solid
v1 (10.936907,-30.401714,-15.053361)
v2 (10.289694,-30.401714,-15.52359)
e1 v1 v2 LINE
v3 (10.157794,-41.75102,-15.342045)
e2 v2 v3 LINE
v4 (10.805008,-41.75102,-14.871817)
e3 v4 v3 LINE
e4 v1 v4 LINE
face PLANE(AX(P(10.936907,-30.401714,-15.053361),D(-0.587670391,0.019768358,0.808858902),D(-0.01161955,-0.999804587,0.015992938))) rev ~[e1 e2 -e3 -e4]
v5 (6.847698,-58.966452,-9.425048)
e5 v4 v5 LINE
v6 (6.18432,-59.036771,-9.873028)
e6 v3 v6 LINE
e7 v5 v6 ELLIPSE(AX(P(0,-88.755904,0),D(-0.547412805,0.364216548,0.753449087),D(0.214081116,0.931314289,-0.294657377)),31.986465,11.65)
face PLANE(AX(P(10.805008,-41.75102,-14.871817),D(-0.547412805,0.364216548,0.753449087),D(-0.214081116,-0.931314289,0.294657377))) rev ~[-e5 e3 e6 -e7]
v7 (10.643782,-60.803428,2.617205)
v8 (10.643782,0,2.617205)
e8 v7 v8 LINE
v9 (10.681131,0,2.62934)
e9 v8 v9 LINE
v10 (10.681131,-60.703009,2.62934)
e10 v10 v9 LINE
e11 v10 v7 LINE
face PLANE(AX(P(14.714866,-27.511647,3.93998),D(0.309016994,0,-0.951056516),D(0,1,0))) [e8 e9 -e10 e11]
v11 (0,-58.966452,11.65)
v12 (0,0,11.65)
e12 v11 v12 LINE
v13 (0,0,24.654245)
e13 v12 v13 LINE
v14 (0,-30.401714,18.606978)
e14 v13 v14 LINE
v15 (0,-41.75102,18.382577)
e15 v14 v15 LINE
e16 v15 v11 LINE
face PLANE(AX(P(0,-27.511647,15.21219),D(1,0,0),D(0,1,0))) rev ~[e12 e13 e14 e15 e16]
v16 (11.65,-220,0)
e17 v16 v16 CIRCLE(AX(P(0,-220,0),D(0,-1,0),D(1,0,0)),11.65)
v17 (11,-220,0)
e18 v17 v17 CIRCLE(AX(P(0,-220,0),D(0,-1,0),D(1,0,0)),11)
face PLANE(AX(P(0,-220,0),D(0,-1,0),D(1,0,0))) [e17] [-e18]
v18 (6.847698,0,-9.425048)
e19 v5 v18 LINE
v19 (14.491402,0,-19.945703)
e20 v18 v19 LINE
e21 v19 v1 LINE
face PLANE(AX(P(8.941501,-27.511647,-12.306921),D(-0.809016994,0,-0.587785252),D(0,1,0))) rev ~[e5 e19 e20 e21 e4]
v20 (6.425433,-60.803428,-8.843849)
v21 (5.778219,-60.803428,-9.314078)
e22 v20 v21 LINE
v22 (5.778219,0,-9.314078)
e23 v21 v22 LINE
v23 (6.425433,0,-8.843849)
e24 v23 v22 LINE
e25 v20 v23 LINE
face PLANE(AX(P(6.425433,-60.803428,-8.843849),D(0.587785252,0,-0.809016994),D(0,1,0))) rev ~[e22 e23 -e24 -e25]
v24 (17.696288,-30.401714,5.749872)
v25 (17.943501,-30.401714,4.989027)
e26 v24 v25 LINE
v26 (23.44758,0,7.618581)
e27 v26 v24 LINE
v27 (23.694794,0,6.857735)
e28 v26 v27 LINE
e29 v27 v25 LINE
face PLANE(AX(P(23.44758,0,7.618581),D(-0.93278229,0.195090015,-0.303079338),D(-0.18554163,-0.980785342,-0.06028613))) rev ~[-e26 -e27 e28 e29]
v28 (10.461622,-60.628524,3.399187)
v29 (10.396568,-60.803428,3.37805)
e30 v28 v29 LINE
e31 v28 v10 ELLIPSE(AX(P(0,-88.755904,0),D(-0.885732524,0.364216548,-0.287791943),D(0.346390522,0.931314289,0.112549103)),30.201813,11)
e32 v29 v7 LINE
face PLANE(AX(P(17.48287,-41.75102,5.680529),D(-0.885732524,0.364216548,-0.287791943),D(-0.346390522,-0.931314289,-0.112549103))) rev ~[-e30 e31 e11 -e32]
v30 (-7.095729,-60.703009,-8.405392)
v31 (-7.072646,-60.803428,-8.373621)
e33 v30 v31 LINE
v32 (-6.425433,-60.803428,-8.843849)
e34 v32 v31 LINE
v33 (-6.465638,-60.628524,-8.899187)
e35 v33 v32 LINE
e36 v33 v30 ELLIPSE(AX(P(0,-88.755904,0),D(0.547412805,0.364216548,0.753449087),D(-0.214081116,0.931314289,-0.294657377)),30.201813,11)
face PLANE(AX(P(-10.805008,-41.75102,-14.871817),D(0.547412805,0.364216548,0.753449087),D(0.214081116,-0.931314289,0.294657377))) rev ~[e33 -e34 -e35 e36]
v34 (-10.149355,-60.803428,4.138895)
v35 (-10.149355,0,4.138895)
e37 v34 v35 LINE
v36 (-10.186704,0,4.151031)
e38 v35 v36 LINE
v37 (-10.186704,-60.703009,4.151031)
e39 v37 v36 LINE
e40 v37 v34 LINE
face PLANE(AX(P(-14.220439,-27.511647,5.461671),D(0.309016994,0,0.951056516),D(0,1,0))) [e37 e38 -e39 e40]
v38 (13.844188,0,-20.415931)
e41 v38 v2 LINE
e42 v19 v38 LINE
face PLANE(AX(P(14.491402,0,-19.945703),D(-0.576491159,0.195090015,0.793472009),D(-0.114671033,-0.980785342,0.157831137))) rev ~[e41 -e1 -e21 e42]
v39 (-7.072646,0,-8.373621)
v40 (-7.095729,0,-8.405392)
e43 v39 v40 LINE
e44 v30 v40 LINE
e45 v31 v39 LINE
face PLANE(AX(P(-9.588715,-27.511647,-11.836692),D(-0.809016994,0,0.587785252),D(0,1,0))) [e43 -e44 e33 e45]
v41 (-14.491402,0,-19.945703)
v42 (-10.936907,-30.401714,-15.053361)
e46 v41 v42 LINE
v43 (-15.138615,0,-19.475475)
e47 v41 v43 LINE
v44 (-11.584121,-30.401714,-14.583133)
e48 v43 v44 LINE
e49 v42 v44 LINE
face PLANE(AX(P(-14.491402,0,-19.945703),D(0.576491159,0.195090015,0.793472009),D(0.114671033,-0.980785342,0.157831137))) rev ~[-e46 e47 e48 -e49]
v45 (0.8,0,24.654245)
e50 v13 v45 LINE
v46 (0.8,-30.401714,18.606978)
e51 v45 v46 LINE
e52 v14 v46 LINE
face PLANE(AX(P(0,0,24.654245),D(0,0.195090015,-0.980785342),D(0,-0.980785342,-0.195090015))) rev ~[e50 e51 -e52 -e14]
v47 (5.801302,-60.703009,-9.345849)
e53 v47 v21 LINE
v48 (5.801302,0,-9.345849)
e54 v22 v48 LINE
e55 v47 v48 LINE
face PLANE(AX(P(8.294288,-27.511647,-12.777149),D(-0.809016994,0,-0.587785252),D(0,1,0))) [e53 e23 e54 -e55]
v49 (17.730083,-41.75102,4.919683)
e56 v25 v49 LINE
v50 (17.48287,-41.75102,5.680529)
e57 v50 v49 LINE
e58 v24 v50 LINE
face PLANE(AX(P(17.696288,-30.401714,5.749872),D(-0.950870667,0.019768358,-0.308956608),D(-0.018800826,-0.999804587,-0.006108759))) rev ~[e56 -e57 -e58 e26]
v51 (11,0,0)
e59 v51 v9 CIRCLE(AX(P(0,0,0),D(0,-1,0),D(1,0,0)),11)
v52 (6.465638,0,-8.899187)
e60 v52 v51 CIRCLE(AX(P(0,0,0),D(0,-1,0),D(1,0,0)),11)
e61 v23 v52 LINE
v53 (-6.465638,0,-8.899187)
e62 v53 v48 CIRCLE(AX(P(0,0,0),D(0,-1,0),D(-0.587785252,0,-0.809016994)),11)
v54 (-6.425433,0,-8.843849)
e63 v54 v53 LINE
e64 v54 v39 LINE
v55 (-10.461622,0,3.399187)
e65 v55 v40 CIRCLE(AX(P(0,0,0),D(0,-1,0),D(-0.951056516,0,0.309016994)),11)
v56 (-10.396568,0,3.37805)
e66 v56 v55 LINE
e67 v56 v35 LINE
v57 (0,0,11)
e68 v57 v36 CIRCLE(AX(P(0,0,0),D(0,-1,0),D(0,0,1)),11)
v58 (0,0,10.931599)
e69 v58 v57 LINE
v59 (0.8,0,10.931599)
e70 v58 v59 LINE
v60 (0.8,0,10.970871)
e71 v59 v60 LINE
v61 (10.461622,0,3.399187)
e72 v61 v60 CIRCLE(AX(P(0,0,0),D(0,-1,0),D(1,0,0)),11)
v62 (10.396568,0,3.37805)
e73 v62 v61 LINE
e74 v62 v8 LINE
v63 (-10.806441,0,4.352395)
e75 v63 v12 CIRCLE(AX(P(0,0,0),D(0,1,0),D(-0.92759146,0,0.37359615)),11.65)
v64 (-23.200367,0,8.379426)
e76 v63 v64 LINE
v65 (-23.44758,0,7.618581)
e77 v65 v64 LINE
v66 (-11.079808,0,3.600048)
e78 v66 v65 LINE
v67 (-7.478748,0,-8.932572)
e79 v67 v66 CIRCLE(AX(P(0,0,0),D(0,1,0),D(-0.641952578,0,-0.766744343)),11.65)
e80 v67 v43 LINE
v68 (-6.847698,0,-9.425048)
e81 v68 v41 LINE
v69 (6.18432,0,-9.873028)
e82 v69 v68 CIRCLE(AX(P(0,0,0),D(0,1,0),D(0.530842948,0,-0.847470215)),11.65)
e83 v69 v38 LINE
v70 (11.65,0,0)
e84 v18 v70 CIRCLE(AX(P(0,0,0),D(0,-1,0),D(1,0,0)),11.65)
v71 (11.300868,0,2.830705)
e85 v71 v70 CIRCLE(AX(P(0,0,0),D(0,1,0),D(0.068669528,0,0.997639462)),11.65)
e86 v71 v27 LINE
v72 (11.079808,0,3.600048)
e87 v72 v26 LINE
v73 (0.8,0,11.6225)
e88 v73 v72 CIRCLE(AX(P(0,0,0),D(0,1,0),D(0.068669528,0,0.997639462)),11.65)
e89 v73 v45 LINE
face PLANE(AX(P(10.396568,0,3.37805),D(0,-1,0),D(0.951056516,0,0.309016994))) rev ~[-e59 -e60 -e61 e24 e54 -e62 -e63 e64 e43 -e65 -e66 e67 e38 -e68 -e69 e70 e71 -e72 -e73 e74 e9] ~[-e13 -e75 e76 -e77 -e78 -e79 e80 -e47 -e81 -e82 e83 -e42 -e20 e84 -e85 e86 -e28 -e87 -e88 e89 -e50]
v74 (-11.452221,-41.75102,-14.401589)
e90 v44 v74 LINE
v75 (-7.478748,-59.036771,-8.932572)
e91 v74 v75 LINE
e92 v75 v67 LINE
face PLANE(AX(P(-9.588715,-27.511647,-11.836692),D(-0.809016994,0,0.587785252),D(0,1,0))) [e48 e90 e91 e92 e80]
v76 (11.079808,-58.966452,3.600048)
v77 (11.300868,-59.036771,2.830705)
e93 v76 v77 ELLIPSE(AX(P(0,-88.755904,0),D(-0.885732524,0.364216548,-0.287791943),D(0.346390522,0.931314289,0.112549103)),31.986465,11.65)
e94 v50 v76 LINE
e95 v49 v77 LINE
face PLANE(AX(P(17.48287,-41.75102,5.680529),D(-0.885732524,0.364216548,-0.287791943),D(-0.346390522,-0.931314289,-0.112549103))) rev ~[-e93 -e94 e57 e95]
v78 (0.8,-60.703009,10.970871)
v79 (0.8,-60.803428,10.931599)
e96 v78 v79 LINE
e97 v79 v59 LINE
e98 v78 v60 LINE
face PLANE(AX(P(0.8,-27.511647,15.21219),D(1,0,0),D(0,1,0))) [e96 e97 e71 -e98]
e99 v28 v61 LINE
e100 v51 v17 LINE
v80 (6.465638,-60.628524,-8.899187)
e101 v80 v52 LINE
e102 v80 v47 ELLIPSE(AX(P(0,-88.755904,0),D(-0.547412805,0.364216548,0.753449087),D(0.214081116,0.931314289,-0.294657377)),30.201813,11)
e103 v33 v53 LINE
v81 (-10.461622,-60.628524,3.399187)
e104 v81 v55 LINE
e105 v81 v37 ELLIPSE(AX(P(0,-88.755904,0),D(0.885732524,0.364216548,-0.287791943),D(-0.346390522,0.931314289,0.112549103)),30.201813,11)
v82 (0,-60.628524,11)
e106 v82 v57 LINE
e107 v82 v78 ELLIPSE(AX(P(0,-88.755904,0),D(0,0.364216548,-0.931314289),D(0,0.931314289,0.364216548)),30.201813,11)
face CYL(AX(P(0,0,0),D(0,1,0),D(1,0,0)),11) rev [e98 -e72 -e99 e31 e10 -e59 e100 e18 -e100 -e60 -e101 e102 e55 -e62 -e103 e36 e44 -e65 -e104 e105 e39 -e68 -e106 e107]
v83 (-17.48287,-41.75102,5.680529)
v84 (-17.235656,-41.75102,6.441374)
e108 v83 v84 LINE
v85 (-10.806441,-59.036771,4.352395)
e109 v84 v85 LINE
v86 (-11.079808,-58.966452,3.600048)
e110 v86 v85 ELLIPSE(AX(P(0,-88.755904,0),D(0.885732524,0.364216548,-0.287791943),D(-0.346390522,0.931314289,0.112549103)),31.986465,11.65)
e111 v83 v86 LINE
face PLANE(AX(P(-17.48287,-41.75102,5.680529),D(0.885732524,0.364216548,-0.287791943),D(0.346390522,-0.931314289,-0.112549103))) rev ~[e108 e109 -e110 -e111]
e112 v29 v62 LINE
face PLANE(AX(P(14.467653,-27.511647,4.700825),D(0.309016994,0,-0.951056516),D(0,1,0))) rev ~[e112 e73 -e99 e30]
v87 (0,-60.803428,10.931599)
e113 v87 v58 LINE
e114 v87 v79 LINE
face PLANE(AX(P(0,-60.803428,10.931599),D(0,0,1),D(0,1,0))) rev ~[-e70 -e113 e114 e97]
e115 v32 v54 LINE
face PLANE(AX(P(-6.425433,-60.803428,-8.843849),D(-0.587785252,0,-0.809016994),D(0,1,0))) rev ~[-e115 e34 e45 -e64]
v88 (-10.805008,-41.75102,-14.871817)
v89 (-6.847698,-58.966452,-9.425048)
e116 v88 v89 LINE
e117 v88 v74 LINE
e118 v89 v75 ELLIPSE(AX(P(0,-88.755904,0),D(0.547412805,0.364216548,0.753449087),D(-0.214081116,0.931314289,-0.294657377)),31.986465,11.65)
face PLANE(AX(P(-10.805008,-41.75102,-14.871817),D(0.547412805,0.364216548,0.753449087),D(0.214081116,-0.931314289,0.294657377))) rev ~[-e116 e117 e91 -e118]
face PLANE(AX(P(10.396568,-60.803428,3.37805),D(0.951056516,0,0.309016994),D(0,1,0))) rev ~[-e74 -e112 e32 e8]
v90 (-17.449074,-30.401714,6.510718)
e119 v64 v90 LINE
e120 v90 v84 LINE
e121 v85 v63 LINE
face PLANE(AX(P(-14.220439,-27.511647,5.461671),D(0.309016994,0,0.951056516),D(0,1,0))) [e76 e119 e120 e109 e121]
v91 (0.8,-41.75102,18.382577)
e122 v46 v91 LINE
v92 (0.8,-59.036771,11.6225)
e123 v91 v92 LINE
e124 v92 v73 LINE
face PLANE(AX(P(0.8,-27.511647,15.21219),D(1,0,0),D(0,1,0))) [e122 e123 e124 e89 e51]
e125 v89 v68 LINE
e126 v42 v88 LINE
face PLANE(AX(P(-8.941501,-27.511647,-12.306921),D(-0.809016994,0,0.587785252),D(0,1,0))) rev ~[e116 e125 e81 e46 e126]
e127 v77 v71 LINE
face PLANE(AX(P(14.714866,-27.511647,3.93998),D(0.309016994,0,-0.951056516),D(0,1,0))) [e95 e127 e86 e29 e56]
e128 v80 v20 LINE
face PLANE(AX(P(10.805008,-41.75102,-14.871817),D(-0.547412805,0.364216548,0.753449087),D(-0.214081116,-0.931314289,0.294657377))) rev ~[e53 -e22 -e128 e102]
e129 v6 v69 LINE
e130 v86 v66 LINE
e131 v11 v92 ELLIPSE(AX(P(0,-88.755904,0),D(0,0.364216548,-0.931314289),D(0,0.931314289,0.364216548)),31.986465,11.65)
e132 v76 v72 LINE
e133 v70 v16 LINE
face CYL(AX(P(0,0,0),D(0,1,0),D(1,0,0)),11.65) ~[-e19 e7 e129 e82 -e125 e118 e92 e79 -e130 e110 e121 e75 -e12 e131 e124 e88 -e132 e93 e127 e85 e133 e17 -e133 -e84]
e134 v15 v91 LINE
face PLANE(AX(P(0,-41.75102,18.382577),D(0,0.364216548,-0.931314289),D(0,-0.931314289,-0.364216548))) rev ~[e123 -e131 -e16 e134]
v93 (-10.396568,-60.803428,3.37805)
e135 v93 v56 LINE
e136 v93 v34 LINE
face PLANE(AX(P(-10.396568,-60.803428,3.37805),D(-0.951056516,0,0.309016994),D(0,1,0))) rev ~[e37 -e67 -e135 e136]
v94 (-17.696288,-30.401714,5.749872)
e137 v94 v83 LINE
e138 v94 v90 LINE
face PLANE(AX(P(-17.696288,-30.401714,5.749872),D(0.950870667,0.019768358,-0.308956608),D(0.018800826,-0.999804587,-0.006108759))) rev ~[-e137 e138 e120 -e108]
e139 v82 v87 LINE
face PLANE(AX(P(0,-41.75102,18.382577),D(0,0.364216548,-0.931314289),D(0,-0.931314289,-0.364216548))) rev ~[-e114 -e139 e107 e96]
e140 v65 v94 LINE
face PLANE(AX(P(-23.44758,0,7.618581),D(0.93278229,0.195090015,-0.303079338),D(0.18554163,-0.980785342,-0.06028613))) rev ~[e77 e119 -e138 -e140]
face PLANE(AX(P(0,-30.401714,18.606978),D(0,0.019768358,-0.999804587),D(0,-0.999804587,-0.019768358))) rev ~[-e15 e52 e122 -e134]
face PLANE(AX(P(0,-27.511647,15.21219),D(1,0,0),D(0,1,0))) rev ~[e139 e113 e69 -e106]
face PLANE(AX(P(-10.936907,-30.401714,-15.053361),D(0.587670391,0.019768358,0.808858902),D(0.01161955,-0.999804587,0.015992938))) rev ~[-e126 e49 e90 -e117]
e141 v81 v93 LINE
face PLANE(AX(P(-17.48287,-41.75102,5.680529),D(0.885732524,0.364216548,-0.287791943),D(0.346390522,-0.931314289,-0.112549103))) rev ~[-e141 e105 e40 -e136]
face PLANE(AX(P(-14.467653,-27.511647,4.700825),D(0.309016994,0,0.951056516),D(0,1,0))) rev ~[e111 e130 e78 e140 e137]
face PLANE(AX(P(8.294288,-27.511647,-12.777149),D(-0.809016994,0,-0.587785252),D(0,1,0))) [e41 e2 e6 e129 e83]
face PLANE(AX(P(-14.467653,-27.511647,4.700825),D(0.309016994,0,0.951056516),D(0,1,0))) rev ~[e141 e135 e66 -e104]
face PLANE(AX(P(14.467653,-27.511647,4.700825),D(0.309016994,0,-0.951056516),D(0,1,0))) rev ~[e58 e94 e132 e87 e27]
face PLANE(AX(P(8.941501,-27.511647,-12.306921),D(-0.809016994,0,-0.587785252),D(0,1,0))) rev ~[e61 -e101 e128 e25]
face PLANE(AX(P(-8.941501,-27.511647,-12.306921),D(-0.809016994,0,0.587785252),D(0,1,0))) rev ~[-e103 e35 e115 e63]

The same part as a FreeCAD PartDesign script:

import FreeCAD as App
import Part
import Sketcher
Q = App.Units.Quantity


def add_polygon(sketch, points):
    """Adds a closed chain of lines whose ends are joined by coincident constraints."""
    first, n = sketch.GeometryCount, len(points)
    for a, b in zip(points, points[1:] + points[:1]):
        sketch.addGeometry(Part.LineSegment(App.Vector(*a, 0), App.Vector(*b, 0)), False)
    for i in range(n):
        sketch.addConstraint(Sketcher.Constraint("Coincident", first + i, 2, first + (i + 1) % n, 1))

doc = App.newDocument("Part")
body = doc.addObject("PartDesign::Body", "Body")

sketch1 = body.newObject("Sketcher::SketchObject", "Sketch")
sketch1.AttachmentSupport = (doc.getObject("XZ_Plane"), [""])
sketch1.MapMode = "FlatFace"
sketch1.addGeometry(Part.Circle(App.Vector(0, 0, 0), App.Vector(0, 0, 1), 12), False)
sketch1.addGeometry(Part.Circle(App.Vector(0, 0, 0), App.Vector(0, 0, 1), 11), False)
sketch1.addConstraint(Sketcher.Constraint("Coincident", 0, 3, -1, 1))
sketch1.addConstraint(Sketcher.Constraint("Coincident", 1, 3, -1, 1))
sketch1.addConstraint(Sketcher.Constraint("Diameter", 1, 22.0))
sketch1.addConstraint(Sketcher.Constraint("Diameter", 0, 23.3))
pad1 = body.newObject("PartDesign::Pad", "Pad")
pad1.Profile = sketch1
pad1.Length = 220

sketch2 = body.newObject("Sketcher::SketchObject", "Sketch001")
sketch2.AttachmentSupport = (doc.getObject("YZ_Plane"), [""])
sketch2.MapMode = "FlatFace"
add_polygon(sketch2, [(-61, 11), (0, 11), (0, 25), (-30, 19), (-42, 18)])
sketch2.addConstraint(Sketcher.Constraint("Horizontal", 0))
sketch2.addConstraint(Sketcher.Constraint("Vertical", 1))
sketch2.addConstraint(Sketcher.Constraint("PointOnObject", 0, 2, -2))
sketch2.addConstraint(Sketcher.Constraint("Angle", 2, Q("-168.750018 deg")))
sketch2.addConstraint(Sketcher.Constraint("DistanceY", -1, 1, 0, 2, 10.931599))
sketch2.addConstraint(Sketcher.Constraint("DistanceY", 3, 2, 2, 2, 0.224401))
sketch2.addConstraint(Sketcher.Constraint("Distance", 4, 20.457549))
sketch2.addConstraint(Sketcher.Constraint("DistanceX", 0, 1, 0, 2, 60.803428))
sketch2.addConstraint(Sketcher.Constraint("DistanceY", 1, 1, 1, 2, 13.722646))
sketch2.addConstraint(Sketcher.Constraint("DistanceY", -1, 1, 2, 2, 18.606978))
pad2 = body.newObject("PartDesign::Pad", "Pad001")
pad2.Profile = sketch2
pad2.Length = 0.8
body2 = doc.addObject("PartDesign::Body", "Body001")
doc.recompute()

body2.BaseFeature = body
doc.recompute()

body3 = doc.addObject("PartDesign::Body", "Body002")
body3.BaseFeature = body
body3.Placement = App.Placement(App.Vector(0, 0, 0), App.Rotation(App.Vector(0, -1, 0), 72))
boolean = body2.newObject("PartDesign::Boolean", "Boolean")
boolean.Type = "Fuse"
boolean.addObjects([body3])
doc.recompute()

body4 = doc.addObject("PartDesign::Body", "Body003")
body4.BaseFeature = body
body4.Placement = App.Placement(App.Vector(0, 0, 0), App.Rotation(App.Vector(0, -1, 0), 144))
boolean2 = body2.newObject("PartDesign::Boolean", "Boolean001")
boolean2.Type = "Fuse"
boolean2.addObjects([body4])
doc.recompute()

body5 = doc.addObject("PartDesign::Body", "Body004")
body5.BaseFeature = body
body5.Placement = App.Placement(App.Vector(0, 0, 0), App.Rotation(App.Vector(0, -1, 0), 216))
boolean3 = body2.newObject("PartDesign::Boolean", "Boolean002")
boolean3.Type = "Fuse"
boolean3.addObjects([body5])
doc.recompute()

body.Placement = App.Placement(App.Vector(0, 0, 0), App.Rotation(App.Vector(0, -1, 0), 288))
boolean4 = body2.newObject("PartDesign::Boolean", "Boolean003")
boolean4.Type = "Fuse"
boolean4.addObjects([body])

doc.recompute()
